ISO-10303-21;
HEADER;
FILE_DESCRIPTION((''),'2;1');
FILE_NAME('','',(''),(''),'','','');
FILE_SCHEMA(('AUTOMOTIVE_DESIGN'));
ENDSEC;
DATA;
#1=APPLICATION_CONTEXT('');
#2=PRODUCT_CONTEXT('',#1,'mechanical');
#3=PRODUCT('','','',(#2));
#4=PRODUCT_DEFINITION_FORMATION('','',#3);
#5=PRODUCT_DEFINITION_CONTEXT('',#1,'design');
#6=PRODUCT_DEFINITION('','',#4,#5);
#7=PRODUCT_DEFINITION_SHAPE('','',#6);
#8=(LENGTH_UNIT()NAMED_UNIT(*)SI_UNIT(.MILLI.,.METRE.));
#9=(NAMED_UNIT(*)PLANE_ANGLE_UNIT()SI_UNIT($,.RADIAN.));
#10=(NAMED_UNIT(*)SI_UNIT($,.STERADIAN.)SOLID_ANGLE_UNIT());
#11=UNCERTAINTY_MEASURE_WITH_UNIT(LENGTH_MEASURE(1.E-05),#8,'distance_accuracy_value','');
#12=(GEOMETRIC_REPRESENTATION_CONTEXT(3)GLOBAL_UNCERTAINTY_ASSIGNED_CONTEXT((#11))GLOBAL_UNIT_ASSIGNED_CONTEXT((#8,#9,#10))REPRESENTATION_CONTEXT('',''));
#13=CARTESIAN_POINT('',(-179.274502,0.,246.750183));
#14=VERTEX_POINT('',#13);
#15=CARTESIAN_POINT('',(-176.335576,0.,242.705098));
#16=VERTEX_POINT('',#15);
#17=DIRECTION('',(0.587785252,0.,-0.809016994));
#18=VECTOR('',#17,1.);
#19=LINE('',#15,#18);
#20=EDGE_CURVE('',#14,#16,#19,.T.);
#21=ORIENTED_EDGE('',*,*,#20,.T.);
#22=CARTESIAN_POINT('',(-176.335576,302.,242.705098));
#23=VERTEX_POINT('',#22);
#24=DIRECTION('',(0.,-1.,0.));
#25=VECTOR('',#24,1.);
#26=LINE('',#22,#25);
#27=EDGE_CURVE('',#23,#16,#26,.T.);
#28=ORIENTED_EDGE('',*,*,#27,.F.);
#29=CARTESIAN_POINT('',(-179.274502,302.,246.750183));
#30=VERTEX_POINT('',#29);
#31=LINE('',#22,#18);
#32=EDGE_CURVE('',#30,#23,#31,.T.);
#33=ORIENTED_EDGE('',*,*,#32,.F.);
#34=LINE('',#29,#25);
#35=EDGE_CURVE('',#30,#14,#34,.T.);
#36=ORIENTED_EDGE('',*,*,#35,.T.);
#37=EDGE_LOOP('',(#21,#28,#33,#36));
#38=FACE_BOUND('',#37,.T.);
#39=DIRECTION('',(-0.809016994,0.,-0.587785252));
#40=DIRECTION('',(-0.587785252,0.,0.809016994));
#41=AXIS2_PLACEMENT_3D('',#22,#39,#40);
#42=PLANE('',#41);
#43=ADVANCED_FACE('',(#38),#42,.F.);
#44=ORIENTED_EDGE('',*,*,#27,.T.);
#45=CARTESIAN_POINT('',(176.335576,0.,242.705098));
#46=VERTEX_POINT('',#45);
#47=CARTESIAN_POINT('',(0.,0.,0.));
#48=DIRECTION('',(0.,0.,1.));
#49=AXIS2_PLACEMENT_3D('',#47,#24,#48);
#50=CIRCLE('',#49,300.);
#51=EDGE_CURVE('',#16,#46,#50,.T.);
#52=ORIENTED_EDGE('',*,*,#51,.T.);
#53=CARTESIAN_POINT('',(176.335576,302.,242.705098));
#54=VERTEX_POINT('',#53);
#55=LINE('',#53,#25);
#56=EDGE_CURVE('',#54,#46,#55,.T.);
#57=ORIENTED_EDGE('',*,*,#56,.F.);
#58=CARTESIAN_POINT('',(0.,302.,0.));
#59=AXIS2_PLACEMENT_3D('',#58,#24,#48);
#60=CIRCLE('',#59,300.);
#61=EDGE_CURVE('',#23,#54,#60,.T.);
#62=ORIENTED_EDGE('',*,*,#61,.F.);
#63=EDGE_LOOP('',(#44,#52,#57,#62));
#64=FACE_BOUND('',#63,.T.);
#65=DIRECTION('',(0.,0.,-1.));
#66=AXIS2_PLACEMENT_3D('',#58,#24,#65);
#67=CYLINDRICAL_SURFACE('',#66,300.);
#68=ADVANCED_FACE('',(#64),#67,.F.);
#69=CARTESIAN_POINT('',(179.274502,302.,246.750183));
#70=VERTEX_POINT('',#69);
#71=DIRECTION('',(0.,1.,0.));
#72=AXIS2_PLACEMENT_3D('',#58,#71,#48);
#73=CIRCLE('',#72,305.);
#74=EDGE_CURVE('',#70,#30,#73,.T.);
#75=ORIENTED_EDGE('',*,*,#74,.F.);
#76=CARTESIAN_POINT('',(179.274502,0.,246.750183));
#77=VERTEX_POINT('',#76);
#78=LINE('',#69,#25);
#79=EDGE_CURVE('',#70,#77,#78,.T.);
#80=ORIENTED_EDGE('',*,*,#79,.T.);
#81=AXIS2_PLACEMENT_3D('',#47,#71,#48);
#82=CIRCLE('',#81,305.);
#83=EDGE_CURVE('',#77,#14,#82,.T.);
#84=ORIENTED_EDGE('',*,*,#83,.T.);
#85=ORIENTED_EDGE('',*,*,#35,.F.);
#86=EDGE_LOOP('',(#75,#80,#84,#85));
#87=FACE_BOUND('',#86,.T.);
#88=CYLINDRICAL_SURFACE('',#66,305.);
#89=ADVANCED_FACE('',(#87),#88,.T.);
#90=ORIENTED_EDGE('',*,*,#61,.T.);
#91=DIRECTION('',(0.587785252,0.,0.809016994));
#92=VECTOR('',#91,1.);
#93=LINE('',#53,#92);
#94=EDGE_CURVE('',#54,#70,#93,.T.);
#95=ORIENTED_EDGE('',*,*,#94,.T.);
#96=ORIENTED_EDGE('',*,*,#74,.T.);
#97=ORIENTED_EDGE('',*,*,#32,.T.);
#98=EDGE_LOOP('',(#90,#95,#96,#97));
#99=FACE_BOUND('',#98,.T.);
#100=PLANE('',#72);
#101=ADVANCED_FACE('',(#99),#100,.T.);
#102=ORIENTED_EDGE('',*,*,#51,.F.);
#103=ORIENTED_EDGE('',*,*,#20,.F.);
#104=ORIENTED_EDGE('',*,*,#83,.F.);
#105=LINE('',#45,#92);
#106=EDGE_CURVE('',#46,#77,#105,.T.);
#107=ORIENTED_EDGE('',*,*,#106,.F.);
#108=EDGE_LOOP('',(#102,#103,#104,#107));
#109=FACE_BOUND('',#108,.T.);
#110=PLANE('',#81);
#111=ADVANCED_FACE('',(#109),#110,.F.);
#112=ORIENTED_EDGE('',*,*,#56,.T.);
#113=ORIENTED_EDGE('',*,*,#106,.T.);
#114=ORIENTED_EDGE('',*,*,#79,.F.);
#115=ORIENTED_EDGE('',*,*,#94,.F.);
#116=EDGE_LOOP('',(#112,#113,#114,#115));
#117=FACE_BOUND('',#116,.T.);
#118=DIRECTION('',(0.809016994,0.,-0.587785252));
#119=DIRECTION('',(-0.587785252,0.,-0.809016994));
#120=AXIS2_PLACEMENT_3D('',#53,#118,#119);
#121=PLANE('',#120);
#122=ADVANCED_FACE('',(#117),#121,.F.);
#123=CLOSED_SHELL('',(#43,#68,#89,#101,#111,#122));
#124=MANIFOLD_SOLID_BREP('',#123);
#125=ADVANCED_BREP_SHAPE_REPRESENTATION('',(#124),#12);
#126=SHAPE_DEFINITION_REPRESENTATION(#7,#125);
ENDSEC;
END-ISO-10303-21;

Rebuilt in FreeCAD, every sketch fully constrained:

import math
import FreeCAD as App
import Part
import Sketcher

V = App.Vector
Q = App.Units.Quantity

doc = App.newDocument("Part")
body = doc.addObject("PartDesign::Body", "Body")

sketch1 = body.newObject("Sketcher::SketchObject", "Sketch")
sketch1.AttachmentSupport = (doc.getObject("XZ_Plane"), [""])
sketch1.MapMode = "FlatFace"
sketch1.addGeometry([
    Part.LineSegment(V(176.3, 242.7, 0), V(179.3, 246.8, 0)),
    Part.ArcOfCircle(Part.Circle(V(0, 0, 0), V(0, 0, 1), 305), math.radians(126), math.radians(414)),
    Part.LineSegment(V(-179.3, 246.8, 0), V(-176.3, 242.7, 0)),
    Part.ArcOfCircle(Part.Circle(V(0, 0, 0), V(0, 0, 1), 300), math.radians(126), math.radians(414)),
], False)
sketch1.addConstraint([
    Sketcher.Constraint("Coincident", 0, 2, 1, 2),
    Sketcher.Constraint("Coincident", 1, 1, 2, 1),
    Sketcher.Constraint("Coincident", 2, 2, 3, 1),
    Sketcher.Constraint("Coincident", 3, 2, 0, 1),
    Sketcher.Constraint("Coincident", 1, 3, -1, 1),
    Sketcher.Constraint("Coincident", 3, 3, -1, 1),
    Sketcher.Constraint("Horizontal", 0, 2, 1, 1),
    Sketcher.Constraint("Horizontal", 2, 2, 3, 2),
    Sketcher.Constraint("Radius", 1, Q("305 mm")),
    Sketcher.Constraint("Radius", 3, Q("300 mm")),
    Sketcher.Constraint("Angle", 0, Q("54 deg")),
    Sketcher.Constraint("DistanceX", -1, 1, 0, 2, Q("179.274502 mm")),
])
pad1 = body.newObject("PartDesign::Pad", "Pad")
pad1.Profile = sketch1
pad1.Length = 302
pad1.Reversed = True

doc.recompute()
